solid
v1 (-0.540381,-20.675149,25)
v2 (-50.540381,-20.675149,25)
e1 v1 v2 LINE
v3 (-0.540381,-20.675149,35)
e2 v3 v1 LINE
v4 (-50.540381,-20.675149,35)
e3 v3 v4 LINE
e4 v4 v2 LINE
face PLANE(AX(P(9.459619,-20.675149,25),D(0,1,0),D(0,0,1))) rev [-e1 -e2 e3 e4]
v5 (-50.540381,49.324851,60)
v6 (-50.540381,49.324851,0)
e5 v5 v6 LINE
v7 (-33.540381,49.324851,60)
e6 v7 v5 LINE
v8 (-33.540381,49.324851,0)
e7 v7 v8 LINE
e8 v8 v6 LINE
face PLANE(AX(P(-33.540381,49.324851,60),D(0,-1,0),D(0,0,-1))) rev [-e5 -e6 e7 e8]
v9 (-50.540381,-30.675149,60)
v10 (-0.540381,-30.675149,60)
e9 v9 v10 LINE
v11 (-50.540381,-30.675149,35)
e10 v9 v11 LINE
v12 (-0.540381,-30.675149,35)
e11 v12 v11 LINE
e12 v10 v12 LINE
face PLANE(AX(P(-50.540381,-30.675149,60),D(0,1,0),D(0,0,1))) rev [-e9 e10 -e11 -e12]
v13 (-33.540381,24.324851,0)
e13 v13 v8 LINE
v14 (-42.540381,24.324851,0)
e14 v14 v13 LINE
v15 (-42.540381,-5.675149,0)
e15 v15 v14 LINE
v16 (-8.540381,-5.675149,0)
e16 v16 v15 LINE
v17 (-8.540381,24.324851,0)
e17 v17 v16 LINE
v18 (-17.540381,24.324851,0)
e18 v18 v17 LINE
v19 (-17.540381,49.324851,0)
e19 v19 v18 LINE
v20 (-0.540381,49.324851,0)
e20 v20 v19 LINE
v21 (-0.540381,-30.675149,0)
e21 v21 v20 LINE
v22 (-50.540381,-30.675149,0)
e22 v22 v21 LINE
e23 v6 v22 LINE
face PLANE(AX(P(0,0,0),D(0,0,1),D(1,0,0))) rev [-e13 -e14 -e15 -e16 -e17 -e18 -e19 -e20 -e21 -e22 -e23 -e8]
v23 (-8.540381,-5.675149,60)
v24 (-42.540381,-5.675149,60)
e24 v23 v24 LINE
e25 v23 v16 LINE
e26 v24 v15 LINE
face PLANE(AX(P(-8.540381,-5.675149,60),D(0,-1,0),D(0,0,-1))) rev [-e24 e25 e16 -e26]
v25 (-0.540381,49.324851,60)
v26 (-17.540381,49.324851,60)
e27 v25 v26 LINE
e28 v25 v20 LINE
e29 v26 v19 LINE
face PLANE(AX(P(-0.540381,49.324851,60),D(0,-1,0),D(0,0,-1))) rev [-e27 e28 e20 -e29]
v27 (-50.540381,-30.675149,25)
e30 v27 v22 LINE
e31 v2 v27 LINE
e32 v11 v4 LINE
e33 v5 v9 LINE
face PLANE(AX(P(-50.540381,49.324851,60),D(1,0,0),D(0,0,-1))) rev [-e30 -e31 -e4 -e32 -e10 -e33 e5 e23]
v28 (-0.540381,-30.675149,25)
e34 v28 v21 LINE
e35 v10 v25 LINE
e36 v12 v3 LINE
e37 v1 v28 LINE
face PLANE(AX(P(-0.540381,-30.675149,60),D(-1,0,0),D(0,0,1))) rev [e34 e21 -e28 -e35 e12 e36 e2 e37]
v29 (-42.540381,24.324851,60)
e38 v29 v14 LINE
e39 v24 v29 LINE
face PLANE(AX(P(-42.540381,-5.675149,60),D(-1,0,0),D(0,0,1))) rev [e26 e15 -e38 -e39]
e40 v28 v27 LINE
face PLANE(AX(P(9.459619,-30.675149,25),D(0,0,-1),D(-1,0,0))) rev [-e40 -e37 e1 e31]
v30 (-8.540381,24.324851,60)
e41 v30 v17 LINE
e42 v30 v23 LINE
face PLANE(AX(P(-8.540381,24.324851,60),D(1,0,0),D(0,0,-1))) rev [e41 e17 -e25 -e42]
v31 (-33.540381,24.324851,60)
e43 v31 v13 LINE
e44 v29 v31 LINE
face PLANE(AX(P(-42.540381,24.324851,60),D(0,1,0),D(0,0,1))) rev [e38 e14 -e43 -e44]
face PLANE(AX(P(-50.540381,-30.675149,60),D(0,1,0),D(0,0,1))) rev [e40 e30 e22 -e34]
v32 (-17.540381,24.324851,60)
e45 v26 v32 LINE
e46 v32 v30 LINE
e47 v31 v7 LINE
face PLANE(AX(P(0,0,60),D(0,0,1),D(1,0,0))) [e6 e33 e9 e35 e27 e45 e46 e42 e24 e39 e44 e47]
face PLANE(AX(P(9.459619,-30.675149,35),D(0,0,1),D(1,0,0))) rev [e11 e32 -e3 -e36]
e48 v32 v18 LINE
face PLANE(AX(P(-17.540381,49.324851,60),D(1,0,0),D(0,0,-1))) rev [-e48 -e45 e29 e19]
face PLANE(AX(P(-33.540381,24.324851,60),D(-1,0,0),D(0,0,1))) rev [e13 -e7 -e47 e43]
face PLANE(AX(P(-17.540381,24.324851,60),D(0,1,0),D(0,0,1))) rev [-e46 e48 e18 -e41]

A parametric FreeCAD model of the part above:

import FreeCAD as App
import Part
import Sketcher
from FreeCAD import Vector

doc = App.newDocument("Part")
body = doc.addObject("PartDesign::Body", "Body")

sketch1 = doc.addObject("Sketcher::SketchObject", "Sketch")
body.addObject(sketch1)
sketch1.AttachmentSupport = (doc.XY_Plane, [""])
sketch1.MapMode = "FlatFace"
sketch1.addGeometry(Part.LineSegment(Vector(-50.540381, -30.675149, 0), Vector(-0.540381, -30.675149, 0)), False)
sketch1.addGeometry(Part.LineSegment(Vector(-0.540381, -30.675149, 0), Vector(-0.540381, 49.324851, 0)), False)
sketch1.addGeometry(Part.LineSegment(Vector(-0.540381, 49.324851, 0), Vector(-17.540381, 49.324851, 0)), False)
sketch1.addGeometry(Part.LineSegment(Vector(-17.540381, 49.324851, 0), Vector(-17.540381, 24.324851, 0)), False)
sketch1.addGeometry(Part.LineSegment(Vector(-17.540381, 24.324851, 0), Vector(-8.540381, 24.324851, 0)), False)
sketch1.addGeometry(Part.LineSegment(Vector(-8.540381, 24.324851, 0), Vector(-8.540381, -5.675149, 0)), False)
sketch1.addGeometry(Part.LineSegment(Vector(-8.540381, -5.675149, 0), Vector(-42.540381, -5.675149, 0)), False)
sketch1.addGeometry(Part.LineSegment(Vector(-42.540381, -5.675149, 0), Vector(-42.540381, 24.324851, 0)), False)
sketch1.addGeometry(Part.LineSegment(Vector(-42.540381, 24.324851, 0), Vector(-33.540381, 24.324851, 0)), False)
sketch1.addGeometry(Part.LineSegment(Vector(-33.540381, 24.324851, 0), Vector(-33.540381, 49.324851, 0)), False)
sketch1.addGeometry(Part.LineSegment(Vector(-33.540381, 49.324851, 0), Vector(-50.540381, 49.324851, 0)), False)
sketch1.addGeometry(Part.LineSegment(Vector(-50.540381, 49.324851, 0), Vector(-50.540381, -30.675149, 0)), False)
sketch1.addConstraint(Sketcher.Constraint("Coincident", 0, 2, 1, 1))
sketch1.addConstraint(Sketcher.Constraint("Coincident", 1, 2, 2, 1))
sketch1.addConstraint(Sketcher.Constraint("Coincident", 2, 2, 3, 1))
sketch1.addConstraint(Sketcher.Constraint("Coincident", 3, 2, 4, 1))
sketch1.addConstraint(Sketcher.Constraint("Coincident", 4, 2, 5, 1))
sketch1.addConstraint(Sketcher.Constraint("Coincident", 5, 2, 6, 1))
sketch1.addConstraint(Sketcher.Constraint("Coincident", 6, 2, 7, 1))
sketch1.addConstraint(Sketcher.Constraint("Coincident", 7, 2, 8, 1))
sketch1.addConstraint(Sketcher.Constraint("Coincident", 8, 2, 9, 1))
sketch1.addConstraint(Sketcher.Constraint("Coincident", 9, 2, 10, 1))
sketch1.addConstraint(Sketcher.Constraint("Coincident", 10, 2, 11, 1))
sketch1.addConstraint(Sketcher.Constraint("Coincident", 11, 2, 0, 1))
sketch1.addConstraint(Sketcher.Constraint("Horizontal", 0))
sketch1.addConstraint(Sketcher.Constraint("Vertical", 1))
sketch1.addConstraint(Sketcher.Constraint("Horizontal", 2))
sketch1.addConstraint(Sketcher.Constraint("Vertical", 3))
sketch1.addConstraint(Sketcher.Constraint("Horizontal", 4))
sketch1.addConstraint(Sketcher.Constraint("Vertical", 5))
sketch1.addConstraint(Sketcher.Constraint("Horizontal", 6))
sketch1.addConstraint(Sketcher.Constraint("Vertical", 7))
sketch1.addConstraint(Sketcher.Constraint("Horizontal", 8))
sketch1.addConstraint(Sketcher.Constraint("Vertical", 9))
sketch1.addConstraint(Sketcher.Constraint("Horizontal", 10))
sketch1.addConstraint(Sketcher.Constraint("Vertical", 11))
sketch1.addConstraint(Sketcher.Constraint("Horizontal", 4, 2, 7, 2))
sketch1.addConstraint(Sketcher.Constraint("Horizontal", 2, 2, 9, 2))
sketch1.addConstraint(Sketcher.Constraint("Equal", 4, 8))
sketch1.addConstraint(Sketcher.Constraint("Equal", 2, 10))
sketch1.addConstraint(Sketcher.Constraint("DistanceX", 0, 1, 0, 2, 50.0))
sketch1.addConstraint(Sketcher.Constraint("DistanceX", 2, 2, 2, 1, 17.0))
sketch1.addConstraint(Sketcher.Constraint("DistanceX", 4, 1, 4, 2, 9.0))
sketch1.addConstraint(Sketcher.Constraint("DistanceY", 1, 1, 1, 2, 80.0))
sketch1.addConstraint(Sketcher.Constraint("DistanceY", 3, 2, 3, 1, 25.0))
sketch1.addConstraint(Sketcher.Constraint("DistanceY", 5, 2, 5, 1, 30.0))
sketch1.addConstraint(Sketcher.Constraint("DistanceX", 0, 2, -1, 1, 0.540381))
sketch1.addConstraint(Sketcher.Constraint("DistanceY", 0, 2, -1, 1, 30.675149))
pad1 = doc.addObject("PartDesign::Pad", "Pad")
body.addObject(pad1)
pad1.Profile = sketch1
pad1.Length = 60

sketch2 = doc.addObject("Sketcher::SketchObject", "Sketch001")
body.addObject(sketch2)
sketch2.AttachmentSupport = (doc.YZ_Plane, [""])
sketch2.MapMode = "FlatFace"
sketch2.AttachmentOffset = App.Placement(Vector(0, 0, -50.540381), App.Rotation())
sketch2.addGeometry(Part.LineSegment(Vector(-20.675149, 25, 0), Vector(-30.675149, 25, 0)), False)
sketch2.addGeometry(Part.LineSegment(Vector(-30.675149, 25, 0), Vector(-30.675149, 35, 0)), False)
sketch2.addGeometry(Part.LineSegment(Vector(-30.675149, 35, 0), Vector(-20.675149, 35, 0)), False)
sketch2.addGeometry(Part.LineSegment(Vector(-20.675149, 35, 0), Vector(-20.675149, 25, 0)), False)
sketch2.addConstraint(Sketcher.Constraint("Coincident", 0, 2, 1, 1))
sketch2.addConstraint(Sketcher.Constraint("Coincident", 1, 2, 2, 1))
sketch2.addConstraint(Sketcher.Constraint("Coincident", 2, 2, 3, 1))
sketch2.addConstraint(Sketcher.Constraint("Coincident", 3, 2, 0, 1))
sketch2.addConstraint(Sketcher.Constraint("Horizontal", 0))
sketch2.addConstraint(Sketcher.Constraint("Vertical", 1))
sketch2.addConstraint(Sketcher.Constraint("Horizontal", 2))
sketch2.addConstraint(Sketcher.Constraint("Vertical", 3))
sketch2.addConstraint(Sketcher.Constraint("Equal", 2, 1))
sketch2.addConstraint(Sketcher.Constraint("DistanceX", 0, 2, 0, 1, 10.0))
sketch2.addConstraint(Sketcher.Constraint("DistanceY", -1, 1, 0, 2, 25.0))
sketch2.addConstraint(Sketcher.Constraint("DistanceX", 0, 2, -1, 1, 30.675149))
pocket1 = doc.addObject("PartDesign::Pocket", "Pocket")
body.addObject(pocket1)
pocket1.Profile = sketch2
pocket1.Length = 60
pocket1.Reversed = True

doc.recompute()
